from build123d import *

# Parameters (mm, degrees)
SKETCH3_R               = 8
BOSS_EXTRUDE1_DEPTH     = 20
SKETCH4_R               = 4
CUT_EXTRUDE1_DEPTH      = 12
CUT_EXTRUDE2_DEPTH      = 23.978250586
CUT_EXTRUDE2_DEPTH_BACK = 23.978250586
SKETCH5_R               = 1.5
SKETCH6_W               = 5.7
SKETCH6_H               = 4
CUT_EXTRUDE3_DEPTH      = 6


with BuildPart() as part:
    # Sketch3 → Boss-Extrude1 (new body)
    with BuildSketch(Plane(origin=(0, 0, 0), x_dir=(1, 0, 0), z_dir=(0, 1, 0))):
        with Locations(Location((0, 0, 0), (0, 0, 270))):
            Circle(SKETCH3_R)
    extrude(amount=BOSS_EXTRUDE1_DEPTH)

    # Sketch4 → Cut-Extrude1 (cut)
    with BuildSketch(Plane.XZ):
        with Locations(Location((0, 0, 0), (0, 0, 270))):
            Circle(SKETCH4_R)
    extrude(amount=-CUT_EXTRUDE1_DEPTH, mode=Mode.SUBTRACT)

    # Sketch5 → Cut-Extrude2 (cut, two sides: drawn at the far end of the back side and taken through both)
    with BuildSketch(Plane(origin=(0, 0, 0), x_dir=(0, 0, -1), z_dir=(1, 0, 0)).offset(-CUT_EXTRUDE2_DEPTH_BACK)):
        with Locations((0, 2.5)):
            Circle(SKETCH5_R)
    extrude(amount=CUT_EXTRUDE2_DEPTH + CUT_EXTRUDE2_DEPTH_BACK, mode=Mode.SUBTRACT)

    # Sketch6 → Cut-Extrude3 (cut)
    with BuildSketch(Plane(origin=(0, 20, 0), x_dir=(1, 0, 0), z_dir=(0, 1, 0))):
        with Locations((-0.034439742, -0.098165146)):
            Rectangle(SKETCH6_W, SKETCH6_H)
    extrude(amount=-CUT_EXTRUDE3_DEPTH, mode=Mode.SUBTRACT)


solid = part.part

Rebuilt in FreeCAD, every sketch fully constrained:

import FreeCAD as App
import Part
import Sketcher
from FreeCAD import Vector
Q = App.Units.Quantity

doc = App.newDocument("Part")
params = doc.addObject("Spreadsheet::Sheet", "Params")
for row, (alias, value) in enumerate([
    ("sketch1_diameter", "16 mm"),
    ("pad1_length", "20 mm"),
    ("sketch2_diameter", "8 mm"),
    ("pocket1_length", "12 mm"),
    ("sketch3_diameter", "3 mm"),
    ("sketch4_height", "4 mm"),
    ("sketch4_width", "5.7 mm"),
    ("pocket3_length", "6 mm"),
], start=1):
    params.set(f"A{row}", alias)
    params.set(f"B{row}", "=" + value)
    params.setAlias(f"B{row}", alias)

body = doc.addObject("PartDesign::Body", "Body")

# Sketch on XZ plane
sketch1 = doc.addObject("Sketcher::SketchObject", "Sketch")
body.addObject(sketch1)
sketch1.AttachmentSupport = (doc.XZ_Plane, [""])
sketch1.MapMode = "FlatFace"
sketch1.addGeometry(Part.Circle(Vector(0, 0, 0), Vector(0, 0, 1), 8), False)
sketch1.addConstraint(Sketcher.Constraint("Coincident", 0, 3, -1, 1))
sketch1.addConstraint(Sketcher.Constraint("Diameter", 0, Q("16 mm")))
sketch1.setExpression("Constraints[1]", "Params.sketch1_diameter")
pad1 = doc.addObject("PartDesign::Pad", "Pad")
body.addObject(pad1)
pad1.Profile = sketch1
pad1.setExpression("Length", "Params.pad1_length")
pad1.Reversed = True

# Sketch on XZ plane
sketch2 = doc.addObject("Sketcher::SketchObject", "Sketch001")
body.addObject(sketch2)
sketch2.AttachmentSupport = (doc.XZ_Plane, [""])
sketch2.MapMode = "FlatFace"
sketch2.addGeometry(Part.Circle(Vector(0, 0, 0), Vector(0, 0, 1), 4), False)
sketch2.addConstraint(Sketcher.Constraint("Coincident", 0, 3, -1, 1))
sketch2.addConstraint(Sketcher.Constraint("Diameter", 0, Q("8 mm")))
sketch2.setExpression("Constraints[1]", "Params.sketch2_diameter")
pocket1 = doc.addObject("PartDesign::Pocket", "Pocket")
body.addObject(pocket1)
pocket1.Profile = sketch2
pocket1.setExpression("Length", "Params.pocket1_length")

# Sketch on YZ plane
sketch3 = doc.addObject("Sketcher::SketchObject", "Sketch002")
body.addObject(sketch3)
sketch3.AttachmentSupport = (doc.YZ_Plane, [""])
sketch3.MapMode = "FlatFace"
sketch3.addGeometry(Part.Circle(Vector(2.5, 0, 0), Vector(0, 0, 1), 1.5), False)
sketch3.addConstraint(Sketcher.Constraint("PointOnObject", 0, 3, -1))
sketch3.addConstraint(Sketcher.Constraint("Diameter", 0, Q("3 mm")))
sketch3.addConstraint(Sketcher.Constraint("DistanceX", -1, 1, 0, 3, Q("2.5 mm")))
sketch3.setExpression("Constraints[1]", "Params.sketch3_diameter")
pocket2 = doc.addObject("PartDesign::Pocket", "Pocket001")
body.addObject(pocket2)
pocket2.Profile = sketch3
pocket2.Type = "ThroughAll"
pocket2.Midplane = True

# Sketch on XZ plane
sketch4 = doc.addObject("Sketcher::SketchObject", "Sketch003")
body.addObject(sketch4)
sketch4.AttachmentSupport = (doc.XZ_Plane, [""])
sketch4.MapMode = "FlatFace"
sketch4.AttachmentOffset = App.Placement(Vector(0, 0, -20), App.Rotation())
sketch4.addGeometry(Part.LineSegment(Vector(-2.88444, -1.901835, 0), Vector(-2.88444, 2.098165, 0)), False)
sketch4.addGeometry(Part.LineSegment(Vector(-2.88444, 2.098165, 0), Vector(2.81556, 2.098165, 0)), False)
sketch4.addGeometry(Part.LineSegment(Vector(2.81556, 2.098165, 0), Vector(2.81556, -1.901835, 0)), False)
sketch4.addGeometry(Part.LineSegment(Vector(2.81556, -1.901835, 0), Vector(-2.88444, -1.901835, 0)), False)
sketch4.addConstraint(Sketcher.Constraint("Coincident", 0, 2, 1, 1))
sketch4.addConstraint(Sketcher.Constraint("Coincident", 1, 2, 2, 1))
sketch4.addConstraint(Sketcher.Constraint("Coincident", 2, 2, 3, 1))
sketch4.addConstraint(Sketcher.Constraint("Coincident", 3, 2, 0, 1))
sketch4.addConstraint(Sketcher.Constraint("Vertical", 0))
sketch4.addConstraint(Sketcher.Constraint("Horizontal", 1))
sketch4.addConstraint(Sketcher.Constraint("Vertical", 2))
sketch4.addConstraint(Sketcher.Constraint("Horizontal", 3))
sketch4.addConstraint(Sketcher.Constraint("DistanceY", 0, 1, 0, 2, Q("4 mm")))
sketch4.addConstraint(Sketcher.Constraint("DistanceX", 1, 1, 1, 2, Q("5.7 mm")))
sketch4.addConstraint(Sketcher.Constraint("DistanceX", 0, 2, -1, 1, Q("2.88444 mm")))
sketch4.addConstraint(Sketcher.Constraint("DistanceY", -1, 1, 0, 2, Q("2.098165 mm")))
sketch4.setExpression("Constraints[8]", "Params.sketch4_height")
sketch4.setExpression("Constraints[9]", "Params.sketch4_width")
pocket3 = doc.addObject("PartDesign::Pocket", "Pocket002")
body.addObject(pocket3)
pocket3.Profile = sketch4
pocket3.setExpression("Length", "Params.pocket3_length")
pocket3.Reversed = True

doc.recompute()
